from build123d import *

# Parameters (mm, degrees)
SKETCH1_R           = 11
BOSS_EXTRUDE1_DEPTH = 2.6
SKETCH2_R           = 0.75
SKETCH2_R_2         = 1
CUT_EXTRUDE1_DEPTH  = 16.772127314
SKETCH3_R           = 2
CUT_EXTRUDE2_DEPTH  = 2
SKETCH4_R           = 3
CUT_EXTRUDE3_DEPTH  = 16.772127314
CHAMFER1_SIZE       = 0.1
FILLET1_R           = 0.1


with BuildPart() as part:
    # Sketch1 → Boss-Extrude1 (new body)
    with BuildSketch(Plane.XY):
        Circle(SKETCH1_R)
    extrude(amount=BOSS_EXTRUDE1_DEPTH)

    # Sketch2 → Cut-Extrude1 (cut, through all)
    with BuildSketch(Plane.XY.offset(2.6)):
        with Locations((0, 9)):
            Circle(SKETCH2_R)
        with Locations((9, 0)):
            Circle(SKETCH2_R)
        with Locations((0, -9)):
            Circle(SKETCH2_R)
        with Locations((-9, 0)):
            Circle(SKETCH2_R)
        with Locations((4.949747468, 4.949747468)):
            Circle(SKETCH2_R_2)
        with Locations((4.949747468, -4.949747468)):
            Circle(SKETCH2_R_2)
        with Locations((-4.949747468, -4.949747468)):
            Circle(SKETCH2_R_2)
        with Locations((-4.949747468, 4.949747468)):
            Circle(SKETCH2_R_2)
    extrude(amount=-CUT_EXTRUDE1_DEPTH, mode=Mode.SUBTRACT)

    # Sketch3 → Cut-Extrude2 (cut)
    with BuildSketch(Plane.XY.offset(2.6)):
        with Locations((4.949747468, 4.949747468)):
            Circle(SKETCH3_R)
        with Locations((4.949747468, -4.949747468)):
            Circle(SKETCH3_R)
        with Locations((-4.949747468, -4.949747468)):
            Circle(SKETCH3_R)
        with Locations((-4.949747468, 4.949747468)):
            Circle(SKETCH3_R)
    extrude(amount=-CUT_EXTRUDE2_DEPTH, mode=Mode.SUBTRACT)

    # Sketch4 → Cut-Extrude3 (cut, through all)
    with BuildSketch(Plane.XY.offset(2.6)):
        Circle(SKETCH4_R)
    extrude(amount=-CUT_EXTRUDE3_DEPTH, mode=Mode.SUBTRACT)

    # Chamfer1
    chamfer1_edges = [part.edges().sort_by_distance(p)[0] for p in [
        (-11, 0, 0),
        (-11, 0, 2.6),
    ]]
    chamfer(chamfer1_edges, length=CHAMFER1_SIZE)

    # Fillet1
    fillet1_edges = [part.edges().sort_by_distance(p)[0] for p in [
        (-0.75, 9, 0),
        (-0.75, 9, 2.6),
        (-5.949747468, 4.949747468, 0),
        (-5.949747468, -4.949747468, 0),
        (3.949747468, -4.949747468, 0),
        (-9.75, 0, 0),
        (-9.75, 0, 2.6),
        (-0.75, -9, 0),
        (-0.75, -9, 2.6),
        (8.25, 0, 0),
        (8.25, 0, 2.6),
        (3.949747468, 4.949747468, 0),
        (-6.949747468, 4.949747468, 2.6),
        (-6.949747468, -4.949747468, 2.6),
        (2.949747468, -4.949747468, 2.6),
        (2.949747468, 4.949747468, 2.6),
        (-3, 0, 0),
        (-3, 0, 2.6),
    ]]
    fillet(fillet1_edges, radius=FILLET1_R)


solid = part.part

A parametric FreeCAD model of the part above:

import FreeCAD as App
import Part
import Sketcher
Q = App.Units.Quantity


def edges_at(feature, points):
    """Names of the edges that pass closest to the given points."""
    edges = feature.Shape.Edges
    near = lambda p: min(range(len(edges)), key=lambda i: edges[i].distToShape(Part.Vertex(*p))[0])
    return sorted({f"Edge{near(p) + 1}" for p in points})

doc = App.newDocument("Part")
params = doc.addObject("Spreadsheet::Sheet", "Params")
for row, (alias, value) in enumerate([
    ("sketch1_diameter", "22 mm"),
    ("pad1_length", "2.6 mm"),
    ("sketch2_diameter", "2 mm"),
    ("sketch2_diameter2", "1.5 mm"),
    ("sketch3_diameter", "4 mm"),
    ("pocket2_length", "2 mm"),
    ("sketch4_diameter", "6 mm"),
    ("chamfer_size", "0.1 mm"),
    ("fillet_radius", "0.1 mm"),
], start=1):
    params.set(f"A{row}", alias)
    params.set(f"B{row}", "=" + value)
    params.setAlias(f"B{row}", alias)

body = doc.addObject("PartDesign::Body", "Body")

sketch1 = doc.addObject("Sketcher::SketchObject", "Sketch")
body.addObject(sketch1)
sketch1.AttachmentSupport = (doc.XY_Plane, [""])
sketch1.MapMode = "FlatFace"
sketch1.addGeometry(Part.Circle(App.Vector(0, 0, 0), App.Vector(0, 0, 1), 11), False)
sketch1.addConstraint([
    Sketcher.Constraint("Coincident", 0, 3, -1, 1),
    Sketcher.Constraint("Diameter", 0, Q("22 mm")),
])
sketch1.setExpression("Constraints[1]", "Params.sketch1_diameter")
pad1 = doc.addObject("PartDesign::Pad", "Pad")
body.addObject(pad1)
pad1.Profile = sketch1
pad1.setExpression("Length", "Params.pad1_length")

sketch2 = doc.addObject("Sketcher::SketchObject", "Sketch001")
body.addObject(sketch2)
sketch2.AttachmentSupport = (doc.XY_Plane, [""])
sketch2.MapMode = "FlatFace"
sketch2.AttachmentOffset = App.Placement(App.Vector(0, 0, 2.6), App.Rotation())
sketch2.addGeometry([
    Part.Circle(App.Vector(0, 9, 0), App.Vector(0, 0, 1), 0.8),
    Part.Circle(App.Vector(9, 0, 0), App.Vector(0, 0, 1), 0.8),
    Part.Circle(App.Vector(0, -9, 0), App.Vector(0, 0, 1), 0.8),
    Part.Circle(App.Vector(-9, 0, 0), App.Vector(0, 0, 1), 0.8),
    Part.Circle(App.Vector(4.9, 4.9, 0), App.Vector(0, 0, 1), 1),
    Part.Circle(App.Vector(4.9, -4.9, 0), App.Vector(0, 0, 1), 1),
    Part.Circle(App.Vector(-4.9, -4.9, 0), App.Vector(0, 0, 1), 1),
    Part.Circle(App.Vector(-4.9, 4.9, 0), App.Vector(0, 0, 1), 1),
], False)
sketch2.addConstraint([
    Sketcher.Constraint("Equal", 0, 1),
    Sketcher.Constraint("Equal", 1, 2),
    Sketcher.Constraint("Equal", 2, 3),
    Sketcher.Constraint("Equal", 4, 5),
    Sketcher.Constraint("Equal", 5, 6),
    Sketcher.Constraint("Equal", 6, 7),
    Sketcher.Constraint("Symmetric", 0, 3, 2, 3, -1, 1),
    Sketcher.Constraint("Symmetric", 1, 3, 3, 3, -1, 1),
    Sketcher.Constraint("Symmetric", 4, 3, 6, 3, -1, 1),
    Sketcher.Constraint("Symmetric", 5, 3, 7, 3, -1, 1),
    Sketcher.Constraint("Symmetric", 5, 3, 6, 3, -2),
    Sketcher.Constraint("PointOnObject", 0, 3, -2),
    Sketcher.Constraint("PointOnObject", 1, 3, -1),
    Sketcher.Constraint("Diameter", 4, Q("2 mm")),
    Sketcher.Constraint("Diameter", 0, Q("1.5 mm")),
    Sketcher.Constraint("DistanceY", -1, 1, 0, 3, Q("9 mm")),
    Sketcher.Constraint("DistanceX", -1, 1, 1, 3, Q("9 mm")),
    Sketcher.Constraint("DistanceX", -1, 1, 4, 3, Q("4.949747 mm")),
    Sketcher.Constraint("DistanceY", -1, 1, 4, 3, Q("4.949747 mm")),
])
sketch2.setExpression("Constraints[13]", "Params.sketch2_diameter")
sketch2.setExpression("Constraints[14]", "Params.sketch2_diameter2")
pocket1 = doc.addObject("PartDesign::Pocket", "Pocket")
body.addObject(pocket1)
pocket1.Profile = sketch2
pocket1.Type = "ThroughAll"

sketch3 = doc.addObject("Sketcher::SketchObject", "Sketch002")
body.addObject(sketch3)
sketch3.AttachmentSupport = (doc.XY_Plane, [""])
sketch3.MapMode = "FlatFace"
sketch3.AttachmentOffset = App.Placement(App.Vector(0, 0, 2.6), App.Rotation())
sketch3.addGeometry([
    Part.Circle(App.Vector(4.9, 4.9, 0), App.Vector(0, 0, 1), 2),
    Part.Circle(App.Vector(4.9, -4.9, 0), App.Vector(0, 0, 1), 2),
    Part.Circle(App.Vector(-4.9, -4.9, 0), App.Vector(0, 0, 1), 2),
    Part.Circle(App.Vector(-4.9, 4.9, 0), App.Vector(0, 0, 1), 2),
], False)
sketch3.addConstraint([
    Sketcher.Constraint("Equal", 0, 1),
    Sketcher.Constraint("Equal", 1, 2),
    Sketcher.Constraint("Equal", 2, 3),
    Sketcher.Constraint("Symmetric", 0, 3, 2, 3, -1, 1),
    Sketcher.Constraint("Symmetric", 1, 3, 3, 3, -1, 1),
    Sketcher.Constraint("Symmetric", 1, 3, 2, 3, -2),
    Sketcher.Constraint("Diameter", 0, Q("4 mm")),
    Sketcher.Constraint("DistanceX", -1, 1, 0, 3, Q("4.949747 mm")),
    Sketcher.Constraint("DistanceY", -1, 1, 0, 3, Q("4.949747 mm")),
])
sketch3.setExpression("Constraints[6]", "Params.sketch3_diameter")
pocket2 = doc.addObject("PartDesign::Pocket", "Pocket001")
body.addObject(pocket2)
pocket2.Profile = sketch3
pocket2.setExpression("Length", "Params.pocket2_length")

sketch4 = doc.addObject("Sketcher::SketchObject", "Sketch003")
body.addObject(sketch4)
sketch4.AttachmentSupport = (doc.XY_Plane, [""])
sketch4.MapMode = "FlatFace"
sketch4.AttachmentOffset = App.Placement(App.Vector(0, 0, 2.6), App.Rotation())
sketch4.addGeometry(Part.Circle(App.Vector(0, 0, 0), App.Vector(0, 0, 1), 3), False)
sketch4.addConstraint([
    Sketcher.Constraint("Coincident", 0, 3, -1, 1),
    Sketcher.Constraint("Diameter", 0, Q("6 mm")),
])
sketch4.setExpression("Constraints[1]", "Params.sketch4_diameter")
pocket3 = doc.addObject("PartDesign::Pocket", "Pocket002")
body.addObject(pocket3)
pocket3.Profile = sketch4
pocket3.Type = "ThroughAll"
doc.recompute()

chamfer = doc.addObject("PartDesign::Chamfer", "Chamfer")
body.addObject(chamfer)
chamfer.Base = (pocket3, edges_at(pocket3, [(-11, 0, 0), (-11, 0, 2.6)]))
chamfer.setExpression("Size", "Params.chamfer_size")
doc.recompute()

fillet = doc.addObject("PartDesign::Fillet", "Fillet")
body.addObject(fillet)
fillet.Base = (chamfer, edges_at(chamfer, [
    (-0.75, 9, 0),
    (-0.75, 9, 2.6),
    (-5.95, 4.95, 0),
    (-5.95, -4.95, 0),
    (3.95, -4.95, 0),
    (-9.75, 0, 0),
    (-9.75, 0, 2.6),
    (-0.75, -9, 0),
    (-0.75, -9, 2.6),
    (8.25, 0, 0),
    (8.25, 0, 2.6),
    (3.95, 4.95, 0),
    (-6.95, 4.95, 2.6),
    (-6.95, -4.95, 2.6),
    (2.95, -4.95, 2.6),
    (2.95, 4.95, 2.6),
    (-3, 0, 0),
    (-3, 0, 2.6),
]))
fillet.setExpression("Radius", "Params.fillet_radius")

doc.recompute()
